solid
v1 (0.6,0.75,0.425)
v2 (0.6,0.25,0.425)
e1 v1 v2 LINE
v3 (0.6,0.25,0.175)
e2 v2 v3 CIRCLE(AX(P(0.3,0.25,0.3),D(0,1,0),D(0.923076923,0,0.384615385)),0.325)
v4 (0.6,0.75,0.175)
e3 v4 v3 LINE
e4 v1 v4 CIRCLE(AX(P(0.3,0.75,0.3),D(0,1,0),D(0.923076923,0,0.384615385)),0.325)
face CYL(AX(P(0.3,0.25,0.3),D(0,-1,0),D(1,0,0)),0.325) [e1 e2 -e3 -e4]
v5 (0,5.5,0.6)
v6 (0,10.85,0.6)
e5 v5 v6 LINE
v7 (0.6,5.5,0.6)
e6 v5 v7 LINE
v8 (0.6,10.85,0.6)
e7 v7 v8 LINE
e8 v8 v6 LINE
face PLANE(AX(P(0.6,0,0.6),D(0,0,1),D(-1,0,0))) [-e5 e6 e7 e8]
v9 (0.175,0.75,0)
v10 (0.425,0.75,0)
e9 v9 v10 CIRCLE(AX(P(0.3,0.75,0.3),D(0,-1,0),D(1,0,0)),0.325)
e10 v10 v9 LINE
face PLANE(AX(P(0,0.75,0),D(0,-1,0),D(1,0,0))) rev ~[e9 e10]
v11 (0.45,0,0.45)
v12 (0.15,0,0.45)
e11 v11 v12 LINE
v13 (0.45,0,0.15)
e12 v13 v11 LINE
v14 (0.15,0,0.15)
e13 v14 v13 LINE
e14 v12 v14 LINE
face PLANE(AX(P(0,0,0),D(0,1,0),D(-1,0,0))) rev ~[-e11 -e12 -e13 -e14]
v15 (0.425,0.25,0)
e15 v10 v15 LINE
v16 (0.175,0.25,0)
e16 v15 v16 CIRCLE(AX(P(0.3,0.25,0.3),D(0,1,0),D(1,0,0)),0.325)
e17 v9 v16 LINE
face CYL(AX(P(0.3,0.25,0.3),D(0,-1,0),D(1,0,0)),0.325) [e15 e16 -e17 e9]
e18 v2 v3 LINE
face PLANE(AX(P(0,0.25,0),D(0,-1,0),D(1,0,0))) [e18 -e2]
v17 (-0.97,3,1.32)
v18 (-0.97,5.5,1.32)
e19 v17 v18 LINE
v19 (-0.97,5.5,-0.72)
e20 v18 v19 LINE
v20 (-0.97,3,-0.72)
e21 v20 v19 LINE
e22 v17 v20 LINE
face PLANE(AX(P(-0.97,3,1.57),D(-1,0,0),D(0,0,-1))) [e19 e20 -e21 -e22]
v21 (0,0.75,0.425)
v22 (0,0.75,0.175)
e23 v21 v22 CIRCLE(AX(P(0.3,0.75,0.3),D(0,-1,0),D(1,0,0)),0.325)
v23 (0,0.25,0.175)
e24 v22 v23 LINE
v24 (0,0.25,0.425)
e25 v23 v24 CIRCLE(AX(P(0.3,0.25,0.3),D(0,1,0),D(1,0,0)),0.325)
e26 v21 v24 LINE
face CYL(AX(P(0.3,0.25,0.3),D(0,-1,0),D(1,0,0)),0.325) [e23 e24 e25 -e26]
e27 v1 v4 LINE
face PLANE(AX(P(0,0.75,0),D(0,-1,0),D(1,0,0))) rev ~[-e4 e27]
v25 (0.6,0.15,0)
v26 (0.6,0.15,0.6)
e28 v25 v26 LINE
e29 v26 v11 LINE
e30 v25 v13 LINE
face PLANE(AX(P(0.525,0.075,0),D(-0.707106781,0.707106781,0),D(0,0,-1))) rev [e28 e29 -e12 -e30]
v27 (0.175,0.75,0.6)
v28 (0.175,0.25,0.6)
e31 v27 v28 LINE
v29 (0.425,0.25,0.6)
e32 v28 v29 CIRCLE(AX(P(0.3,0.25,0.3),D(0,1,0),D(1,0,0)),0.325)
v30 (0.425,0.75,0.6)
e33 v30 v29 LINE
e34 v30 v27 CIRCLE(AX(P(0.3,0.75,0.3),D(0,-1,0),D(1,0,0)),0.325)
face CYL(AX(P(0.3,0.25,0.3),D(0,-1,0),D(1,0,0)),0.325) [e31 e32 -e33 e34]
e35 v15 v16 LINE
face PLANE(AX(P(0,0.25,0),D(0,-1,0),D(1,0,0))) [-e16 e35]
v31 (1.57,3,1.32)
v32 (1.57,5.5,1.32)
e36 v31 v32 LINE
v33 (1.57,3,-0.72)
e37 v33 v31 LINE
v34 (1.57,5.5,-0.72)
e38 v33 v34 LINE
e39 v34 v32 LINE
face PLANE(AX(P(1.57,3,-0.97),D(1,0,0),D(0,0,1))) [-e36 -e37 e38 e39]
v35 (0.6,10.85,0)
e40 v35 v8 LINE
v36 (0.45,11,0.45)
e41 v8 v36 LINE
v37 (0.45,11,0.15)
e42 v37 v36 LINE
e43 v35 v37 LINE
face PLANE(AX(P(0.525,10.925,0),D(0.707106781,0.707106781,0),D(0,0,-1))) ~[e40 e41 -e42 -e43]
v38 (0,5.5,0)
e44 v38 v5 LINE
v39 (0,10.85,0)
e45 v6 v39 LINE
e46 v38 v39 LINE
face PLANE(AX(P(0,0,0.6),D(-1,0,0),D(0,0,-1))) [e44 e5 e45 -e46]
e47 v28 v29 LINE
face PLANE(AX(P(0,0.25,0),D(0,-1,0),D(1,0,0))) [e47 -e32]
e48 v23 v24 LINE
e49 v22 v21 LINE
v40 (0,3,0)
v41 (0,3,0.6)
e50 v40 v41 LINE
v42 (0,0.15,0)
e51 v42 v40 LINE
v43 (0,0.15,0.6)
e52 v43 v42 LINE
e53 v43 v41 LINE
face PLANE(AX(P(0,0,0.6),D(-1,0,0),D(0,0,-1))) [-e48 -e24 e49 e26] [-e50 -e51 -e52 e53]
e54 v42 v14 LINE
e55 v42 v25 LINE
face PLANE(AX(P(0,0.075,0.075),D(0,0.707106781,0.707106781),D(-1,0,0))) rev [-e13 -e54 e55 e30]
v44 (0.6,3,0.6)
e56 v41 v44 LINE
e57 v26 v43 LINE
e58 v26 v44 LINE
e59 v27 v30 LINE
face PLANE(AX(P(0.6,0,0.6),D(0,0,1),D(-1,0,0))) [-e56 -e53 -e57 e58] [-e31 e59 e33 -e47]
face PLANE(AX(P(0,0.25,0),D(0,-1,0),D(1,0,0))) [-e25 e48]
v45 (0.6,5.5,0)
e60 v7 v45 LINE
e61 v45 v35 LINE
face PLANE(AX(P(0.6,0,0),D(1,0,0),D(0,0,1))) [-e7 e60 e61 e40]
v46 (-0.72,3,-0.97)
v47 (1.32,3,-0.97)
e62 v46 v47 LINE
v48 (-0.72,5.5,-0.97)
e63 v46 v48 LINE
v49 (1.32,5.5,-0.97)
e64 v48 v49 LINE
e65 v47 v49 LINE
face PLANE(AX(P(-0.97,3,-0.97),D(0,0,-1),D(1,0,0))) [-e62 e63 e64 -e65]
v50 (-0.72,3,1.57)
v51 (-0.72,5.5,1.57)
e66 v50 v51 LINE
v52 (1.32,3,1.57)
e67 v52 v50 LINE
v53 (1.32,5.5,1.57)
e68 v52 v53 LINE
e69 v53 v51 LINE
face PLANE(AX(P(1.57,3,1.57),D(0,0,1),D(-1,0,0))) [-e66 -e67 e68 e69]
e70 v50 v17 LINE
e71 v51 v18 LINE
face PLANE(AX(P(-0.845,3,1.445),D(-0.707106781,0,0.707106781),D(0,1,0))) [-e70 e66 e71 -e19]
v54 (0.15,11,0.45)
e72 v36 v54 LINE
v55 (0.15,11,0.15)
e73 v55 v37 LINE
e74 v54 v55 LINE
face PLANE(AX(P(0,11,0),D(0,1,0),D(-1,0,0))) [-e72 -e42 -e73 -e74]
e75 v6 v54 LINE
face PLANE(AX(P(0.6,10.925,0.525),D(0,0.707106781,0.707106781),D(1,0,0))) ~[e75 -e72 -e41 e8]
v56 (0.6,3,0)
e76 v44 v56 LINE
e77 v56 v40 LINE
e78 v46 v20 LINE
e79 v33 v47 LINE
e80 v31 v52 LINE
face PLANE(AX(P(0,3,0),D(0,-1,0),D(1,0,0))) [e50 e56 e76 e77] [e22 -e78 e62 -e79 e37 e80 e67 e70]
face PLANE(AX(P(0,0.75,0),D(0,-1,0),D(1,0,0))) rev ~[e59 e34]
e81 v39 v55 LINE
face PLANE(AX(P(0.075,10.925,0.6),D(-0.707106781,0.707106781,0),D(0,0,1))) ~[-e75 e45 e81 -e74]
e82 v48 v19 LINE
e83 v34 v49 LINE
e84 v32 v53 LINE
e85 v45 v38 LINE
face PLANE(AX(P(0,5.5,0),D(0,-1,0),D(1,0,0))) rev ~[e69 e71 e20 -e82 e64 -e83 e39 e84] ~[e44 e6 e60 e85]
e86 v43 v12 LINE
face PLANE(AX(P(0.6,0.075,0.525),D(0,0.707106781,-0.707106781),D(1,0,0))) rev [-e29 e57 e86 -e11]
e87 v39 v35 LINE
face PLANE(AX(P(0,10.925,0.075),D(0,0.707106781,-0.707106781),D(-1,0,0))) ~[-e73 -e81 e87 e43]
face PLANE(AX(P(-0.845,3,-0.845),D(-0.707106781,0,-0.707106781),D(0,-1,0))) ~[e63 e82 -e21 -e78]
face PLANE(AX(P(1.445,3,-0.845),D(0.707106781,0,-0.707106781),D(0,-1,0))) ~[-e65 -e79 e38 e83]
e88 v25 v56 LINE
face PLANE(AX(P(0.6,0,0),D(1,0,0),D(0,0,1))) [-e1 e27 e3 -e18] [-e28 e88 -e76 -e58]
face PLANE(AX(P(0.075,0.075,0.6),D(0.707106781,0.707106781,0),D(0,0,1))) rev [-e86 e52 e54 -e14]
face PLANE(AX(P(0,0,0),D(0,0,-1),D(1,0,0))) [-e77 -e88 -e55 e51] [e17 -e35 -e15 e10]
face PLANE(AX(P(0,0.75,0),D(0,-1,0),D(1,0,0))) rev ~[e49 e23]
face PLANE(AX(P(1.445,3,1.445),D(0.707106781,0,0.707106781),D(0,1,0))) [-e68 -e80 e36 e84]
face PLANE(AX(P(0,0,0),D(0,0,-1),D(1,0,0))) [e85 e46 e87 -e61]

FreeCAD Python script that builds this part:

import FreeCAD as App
import Part
import Sketcher
from FreeCAD import Vector


def edges_at(feature, points):
    """Names of the edges that pass closest to the given points."""
    edges = feature.Shape.Edges
    near = lambda p: min(range(len(edges)), key=lambda i: edges[i].distToShape(Part.Vertex(*p))[0])
    return sorted({f"Edge{near(p) + 1}" for p in points})

doc = App.newDocument("Part")
params = doc.addObject("Spreadsheet::Sheet", "Params")
for row, (alias, value) in enumerate([
    ("sketch1_width", "0.6 mm"),
    ("pad1_length", "11 mm"),
    ("sketch2_width", "2.54 mm"),
    ("pad2_length", "2.5 mm"),
    ("chamfer_size", "0.25 mm"),
    ("chamfer2_size", "0.15 mm"),
    ("chamfer3_size", "0.15 mm"),
    ("sketch3_diameter", "0.65 mm"),
    ("pad3_length", "0.5 mm"),
], start=1):
    params.set(f"A{row}", alias)
    params.set(f"B{row}", "=" + value)
    params.setAlias(f"B{row}", alias)

body = doc.addObject("PartDesign::Body", "Body")

# Sketch on XZ plane
sketch1 = doc.addObject("Sketcher::SketchObject", "Sketch")
body.addObject(sketch1)
sketch1.AttachmentSupport = (doc.XZ_Plane, [""])
sketch1.MapMode = "FlatFace"
sketch1.addGeometry(Part.LineSegment(Vector(0.6, 0, 0), Vector(0, 0, 0)), False)
sketch1.addGeometry(Part.LineSegment(Vector(0, 0, 0), Vector(0, 0.6, 0)), False)
sketch1.addGeometry(Part.LineSegment(Vector(0, 0.6, 0), Vector(0.6, 0.6, 0)), False)
sketch1.addGeometry(Part.LineSegment(Vector(0.6, 0.6, 0), Vector(0.6, 0, 0)), False)
sketch1.addConstraint(Sketcher.Constraint("Coincident", 0, 2, 1, 1))
sketch1.addConstraint(Sketcher.Constraint("Coincident", 1, 2, 2, 1))
sketch1.addConstraint(Sketcher.Constraint("Coincident", 2, 2, 3, 1))
sketch1.addConstraint(Sketcher.Constraint("Coincident", 3, 2, 0, 1))
sketch1.addConstraint(Sketcher.Constraint("Horizontal", 0))
sketch1.addConstraint(Sketcher.Constraint("Vertical", 1))
sketch1.addConstraint(Sketcher.Constraint("Horizontal", 2))
sketch1.addConstraint(Sketcher.Constraint("Vertical", 3))
sketch1.addConstraint(Sketcher.Constraint("Coincident", 0, 2, -1, 1))
sketch1.addConstraint(Sketcher.Constraint("Equal", 2, 1))
sketch1.addConstraint(Sketcher.Constraint("DistanceX", 0, 2, 0, 1, 0.6))
sketch1.setExpression("Constraints[10]", "Params.sketch1_width")
pad1 = doc.addObject("PartDesign::Pad", "Pad")
body.addObject(pad1)
pad1.Profile = sketch1
pad1.setExpression("Length", "Params.pad1_length")
pad1.Reversed = True

# Sketch on XZ plane
sketch2 = doc.addObject("Sketcher::SketchObject", "Sketch001")
body.addObject(sketch2)
sketch2.AttachmentSupport = (doc.XZ_Plane, [""])
sketch2.MapMode = "FlatFace"
sketch2.AttachmentOffset = App.Placement(Vector(0, 0, -3), App.Rotation())
sketch2.addGeometry(Part.LineSegment(Vector(1.6, -1, 0), Vector(1.6, 1.6, 0)), False)
sketch2.addGeometry(Part.LineSegment(Vector(1.6, 1.6, 0), Vector(-1, 1.6, 0)), False)
sketch2.addGeometry(Part.LineSegment(Vector(-1, 1.6, 0), Vector(-1, -1, 0)), False)
sketch2.addGeometry(Part.LineSegment(Vector(-1, -1, 0), Vector(1.6, -1, 0)), False)
sketch2.addConstraint(Sketcher.Constraint("Coincident", 0, 2, 1, 1))
sketch2.addConstraint(Sketcher.Constraint("Coincident", 1, 2, 2, 1))
sketch2.addConstraint(Sketcher.Constraint("Coincident", 2, 2, 3, 1))
sketch2.addConstraint(Sketcher.Constraint("Coincident", 3, 2, 0, 1))
sketch2.addConstraint(Sketcher.Constraint("Vertical", 0))
sketch2.addConstraint(Sketcher.Constraint("Horizontal", 1))
sketch2.addConstraint(Sketcher.Constraint("Vertical", 2))
sketch2.addConstraint(Sketcher.Constraint("Horizontal", 3))
sketch2.addConstraint(Sketcher.Constraint("Equal", 3, 0))
sketch2.addConstraint(Sketcher.Constraint("DistanceX", 1, 2, 1, 1, 2.54))
sketch2.addConstraint(Sketcher.Constraint("DistanceX", 1, 2, -1, 1, 0.97))
sketch2.addConstraint(Sketcher.Constraint("DistanceY", 2, 2, -1, 1, 0.97))
sketch2.setExpression("Constraints[9]", "Params.sketch2_width")
pad2 = doc.addObject("PartDesign::Pad", "Pad001")
body.addObject(pad2)
pad2.Profile = sketch2
pad2.setExpression("Length", "Params.pad2_length")
pad2.Reversed = True
doc.recompute()

chamfer = doc.addObject("PartDesign::Chamfer", "Chamfer")
body.addObject(chamfer)
chamfer.Base = (pad2, edges_at(pad2, [
    (-0.97, 4.25, -0.97),
    (1.57, 4.25, -0.97),
    (1.57, 4.25, 1.57),
    (-0.97, 4.25, 1.57),
]))
chamfer.setExpression("Size", "Params.chamfer_size")
doc.recompute()

chamfer2 = doc.addObject("PartDesign::Chamfer", "Chamfer001")
body.addObject(chamfer2)
chamfer2.Base = (chamfer, edges_at(chamfer, [
    (0.6, 0, 0.3),
    (0.3, 0, 0),
    (0, 0, 0.3),
    (0.3, 0, 0.6),
]))
chamfer2.setExpression("Size", "Params.chamfer2_size")
doc.recompute()

chamfer3 = doc.addObject("PartDesign::Chamfer", "Chamfer002")
body.addObject(chamfer3)
chamfer3.Base = (chamfer2, edges_at(chamfer2, [
    (0.6, 11, 0.3),
    (0.3, 11, 0),
    (0, 11, 0.3),
    (0.3, 11, 0.6),
]))
chamfer3.setExpression("Size", "Params.chamfer3_size")

# Sketch on XZ plane
sketch3 = doc.addObject("Sketcher::SketchObject", "Sketch002")
body.addObject(sketch3)
sketch3.AttachmentSupport = (doc.XZ_Plane, [""])
sketch3.MapMode = "FlatFace"
sketch3.AttachmentOffset = App.Placement(Vector(0, 0, -0.25), App.Rotation())
sketch3.addGeometry(Part.Circle(Vector(0.3, 0.3, 0), Vector(0, 0, 1), 0.33), False)
sketch3.addConstraint(Sketcher.Constraint("Diameter", 0, 0.65))
sketch3.addConstraint(Sketcher.Constraint("DistanceX", -1, 1, 0, 3, 0.3))
sketch3.addConstraint(Sketcher.Constraint("DistanceY", -1, 1, 0, 3, 0.3))
sketch3.setExpression("Constraints[0]", "Params.sketch3_diameter")
pad3 = doc.addObject("PartDesign::Pad", "Pad002")
body.addObject(pad3)
pad3.Profile = sketch3
pad3.setExpression("Length", "Params.pad3_length")
pad3.Reversed = True

doc.recompute()
